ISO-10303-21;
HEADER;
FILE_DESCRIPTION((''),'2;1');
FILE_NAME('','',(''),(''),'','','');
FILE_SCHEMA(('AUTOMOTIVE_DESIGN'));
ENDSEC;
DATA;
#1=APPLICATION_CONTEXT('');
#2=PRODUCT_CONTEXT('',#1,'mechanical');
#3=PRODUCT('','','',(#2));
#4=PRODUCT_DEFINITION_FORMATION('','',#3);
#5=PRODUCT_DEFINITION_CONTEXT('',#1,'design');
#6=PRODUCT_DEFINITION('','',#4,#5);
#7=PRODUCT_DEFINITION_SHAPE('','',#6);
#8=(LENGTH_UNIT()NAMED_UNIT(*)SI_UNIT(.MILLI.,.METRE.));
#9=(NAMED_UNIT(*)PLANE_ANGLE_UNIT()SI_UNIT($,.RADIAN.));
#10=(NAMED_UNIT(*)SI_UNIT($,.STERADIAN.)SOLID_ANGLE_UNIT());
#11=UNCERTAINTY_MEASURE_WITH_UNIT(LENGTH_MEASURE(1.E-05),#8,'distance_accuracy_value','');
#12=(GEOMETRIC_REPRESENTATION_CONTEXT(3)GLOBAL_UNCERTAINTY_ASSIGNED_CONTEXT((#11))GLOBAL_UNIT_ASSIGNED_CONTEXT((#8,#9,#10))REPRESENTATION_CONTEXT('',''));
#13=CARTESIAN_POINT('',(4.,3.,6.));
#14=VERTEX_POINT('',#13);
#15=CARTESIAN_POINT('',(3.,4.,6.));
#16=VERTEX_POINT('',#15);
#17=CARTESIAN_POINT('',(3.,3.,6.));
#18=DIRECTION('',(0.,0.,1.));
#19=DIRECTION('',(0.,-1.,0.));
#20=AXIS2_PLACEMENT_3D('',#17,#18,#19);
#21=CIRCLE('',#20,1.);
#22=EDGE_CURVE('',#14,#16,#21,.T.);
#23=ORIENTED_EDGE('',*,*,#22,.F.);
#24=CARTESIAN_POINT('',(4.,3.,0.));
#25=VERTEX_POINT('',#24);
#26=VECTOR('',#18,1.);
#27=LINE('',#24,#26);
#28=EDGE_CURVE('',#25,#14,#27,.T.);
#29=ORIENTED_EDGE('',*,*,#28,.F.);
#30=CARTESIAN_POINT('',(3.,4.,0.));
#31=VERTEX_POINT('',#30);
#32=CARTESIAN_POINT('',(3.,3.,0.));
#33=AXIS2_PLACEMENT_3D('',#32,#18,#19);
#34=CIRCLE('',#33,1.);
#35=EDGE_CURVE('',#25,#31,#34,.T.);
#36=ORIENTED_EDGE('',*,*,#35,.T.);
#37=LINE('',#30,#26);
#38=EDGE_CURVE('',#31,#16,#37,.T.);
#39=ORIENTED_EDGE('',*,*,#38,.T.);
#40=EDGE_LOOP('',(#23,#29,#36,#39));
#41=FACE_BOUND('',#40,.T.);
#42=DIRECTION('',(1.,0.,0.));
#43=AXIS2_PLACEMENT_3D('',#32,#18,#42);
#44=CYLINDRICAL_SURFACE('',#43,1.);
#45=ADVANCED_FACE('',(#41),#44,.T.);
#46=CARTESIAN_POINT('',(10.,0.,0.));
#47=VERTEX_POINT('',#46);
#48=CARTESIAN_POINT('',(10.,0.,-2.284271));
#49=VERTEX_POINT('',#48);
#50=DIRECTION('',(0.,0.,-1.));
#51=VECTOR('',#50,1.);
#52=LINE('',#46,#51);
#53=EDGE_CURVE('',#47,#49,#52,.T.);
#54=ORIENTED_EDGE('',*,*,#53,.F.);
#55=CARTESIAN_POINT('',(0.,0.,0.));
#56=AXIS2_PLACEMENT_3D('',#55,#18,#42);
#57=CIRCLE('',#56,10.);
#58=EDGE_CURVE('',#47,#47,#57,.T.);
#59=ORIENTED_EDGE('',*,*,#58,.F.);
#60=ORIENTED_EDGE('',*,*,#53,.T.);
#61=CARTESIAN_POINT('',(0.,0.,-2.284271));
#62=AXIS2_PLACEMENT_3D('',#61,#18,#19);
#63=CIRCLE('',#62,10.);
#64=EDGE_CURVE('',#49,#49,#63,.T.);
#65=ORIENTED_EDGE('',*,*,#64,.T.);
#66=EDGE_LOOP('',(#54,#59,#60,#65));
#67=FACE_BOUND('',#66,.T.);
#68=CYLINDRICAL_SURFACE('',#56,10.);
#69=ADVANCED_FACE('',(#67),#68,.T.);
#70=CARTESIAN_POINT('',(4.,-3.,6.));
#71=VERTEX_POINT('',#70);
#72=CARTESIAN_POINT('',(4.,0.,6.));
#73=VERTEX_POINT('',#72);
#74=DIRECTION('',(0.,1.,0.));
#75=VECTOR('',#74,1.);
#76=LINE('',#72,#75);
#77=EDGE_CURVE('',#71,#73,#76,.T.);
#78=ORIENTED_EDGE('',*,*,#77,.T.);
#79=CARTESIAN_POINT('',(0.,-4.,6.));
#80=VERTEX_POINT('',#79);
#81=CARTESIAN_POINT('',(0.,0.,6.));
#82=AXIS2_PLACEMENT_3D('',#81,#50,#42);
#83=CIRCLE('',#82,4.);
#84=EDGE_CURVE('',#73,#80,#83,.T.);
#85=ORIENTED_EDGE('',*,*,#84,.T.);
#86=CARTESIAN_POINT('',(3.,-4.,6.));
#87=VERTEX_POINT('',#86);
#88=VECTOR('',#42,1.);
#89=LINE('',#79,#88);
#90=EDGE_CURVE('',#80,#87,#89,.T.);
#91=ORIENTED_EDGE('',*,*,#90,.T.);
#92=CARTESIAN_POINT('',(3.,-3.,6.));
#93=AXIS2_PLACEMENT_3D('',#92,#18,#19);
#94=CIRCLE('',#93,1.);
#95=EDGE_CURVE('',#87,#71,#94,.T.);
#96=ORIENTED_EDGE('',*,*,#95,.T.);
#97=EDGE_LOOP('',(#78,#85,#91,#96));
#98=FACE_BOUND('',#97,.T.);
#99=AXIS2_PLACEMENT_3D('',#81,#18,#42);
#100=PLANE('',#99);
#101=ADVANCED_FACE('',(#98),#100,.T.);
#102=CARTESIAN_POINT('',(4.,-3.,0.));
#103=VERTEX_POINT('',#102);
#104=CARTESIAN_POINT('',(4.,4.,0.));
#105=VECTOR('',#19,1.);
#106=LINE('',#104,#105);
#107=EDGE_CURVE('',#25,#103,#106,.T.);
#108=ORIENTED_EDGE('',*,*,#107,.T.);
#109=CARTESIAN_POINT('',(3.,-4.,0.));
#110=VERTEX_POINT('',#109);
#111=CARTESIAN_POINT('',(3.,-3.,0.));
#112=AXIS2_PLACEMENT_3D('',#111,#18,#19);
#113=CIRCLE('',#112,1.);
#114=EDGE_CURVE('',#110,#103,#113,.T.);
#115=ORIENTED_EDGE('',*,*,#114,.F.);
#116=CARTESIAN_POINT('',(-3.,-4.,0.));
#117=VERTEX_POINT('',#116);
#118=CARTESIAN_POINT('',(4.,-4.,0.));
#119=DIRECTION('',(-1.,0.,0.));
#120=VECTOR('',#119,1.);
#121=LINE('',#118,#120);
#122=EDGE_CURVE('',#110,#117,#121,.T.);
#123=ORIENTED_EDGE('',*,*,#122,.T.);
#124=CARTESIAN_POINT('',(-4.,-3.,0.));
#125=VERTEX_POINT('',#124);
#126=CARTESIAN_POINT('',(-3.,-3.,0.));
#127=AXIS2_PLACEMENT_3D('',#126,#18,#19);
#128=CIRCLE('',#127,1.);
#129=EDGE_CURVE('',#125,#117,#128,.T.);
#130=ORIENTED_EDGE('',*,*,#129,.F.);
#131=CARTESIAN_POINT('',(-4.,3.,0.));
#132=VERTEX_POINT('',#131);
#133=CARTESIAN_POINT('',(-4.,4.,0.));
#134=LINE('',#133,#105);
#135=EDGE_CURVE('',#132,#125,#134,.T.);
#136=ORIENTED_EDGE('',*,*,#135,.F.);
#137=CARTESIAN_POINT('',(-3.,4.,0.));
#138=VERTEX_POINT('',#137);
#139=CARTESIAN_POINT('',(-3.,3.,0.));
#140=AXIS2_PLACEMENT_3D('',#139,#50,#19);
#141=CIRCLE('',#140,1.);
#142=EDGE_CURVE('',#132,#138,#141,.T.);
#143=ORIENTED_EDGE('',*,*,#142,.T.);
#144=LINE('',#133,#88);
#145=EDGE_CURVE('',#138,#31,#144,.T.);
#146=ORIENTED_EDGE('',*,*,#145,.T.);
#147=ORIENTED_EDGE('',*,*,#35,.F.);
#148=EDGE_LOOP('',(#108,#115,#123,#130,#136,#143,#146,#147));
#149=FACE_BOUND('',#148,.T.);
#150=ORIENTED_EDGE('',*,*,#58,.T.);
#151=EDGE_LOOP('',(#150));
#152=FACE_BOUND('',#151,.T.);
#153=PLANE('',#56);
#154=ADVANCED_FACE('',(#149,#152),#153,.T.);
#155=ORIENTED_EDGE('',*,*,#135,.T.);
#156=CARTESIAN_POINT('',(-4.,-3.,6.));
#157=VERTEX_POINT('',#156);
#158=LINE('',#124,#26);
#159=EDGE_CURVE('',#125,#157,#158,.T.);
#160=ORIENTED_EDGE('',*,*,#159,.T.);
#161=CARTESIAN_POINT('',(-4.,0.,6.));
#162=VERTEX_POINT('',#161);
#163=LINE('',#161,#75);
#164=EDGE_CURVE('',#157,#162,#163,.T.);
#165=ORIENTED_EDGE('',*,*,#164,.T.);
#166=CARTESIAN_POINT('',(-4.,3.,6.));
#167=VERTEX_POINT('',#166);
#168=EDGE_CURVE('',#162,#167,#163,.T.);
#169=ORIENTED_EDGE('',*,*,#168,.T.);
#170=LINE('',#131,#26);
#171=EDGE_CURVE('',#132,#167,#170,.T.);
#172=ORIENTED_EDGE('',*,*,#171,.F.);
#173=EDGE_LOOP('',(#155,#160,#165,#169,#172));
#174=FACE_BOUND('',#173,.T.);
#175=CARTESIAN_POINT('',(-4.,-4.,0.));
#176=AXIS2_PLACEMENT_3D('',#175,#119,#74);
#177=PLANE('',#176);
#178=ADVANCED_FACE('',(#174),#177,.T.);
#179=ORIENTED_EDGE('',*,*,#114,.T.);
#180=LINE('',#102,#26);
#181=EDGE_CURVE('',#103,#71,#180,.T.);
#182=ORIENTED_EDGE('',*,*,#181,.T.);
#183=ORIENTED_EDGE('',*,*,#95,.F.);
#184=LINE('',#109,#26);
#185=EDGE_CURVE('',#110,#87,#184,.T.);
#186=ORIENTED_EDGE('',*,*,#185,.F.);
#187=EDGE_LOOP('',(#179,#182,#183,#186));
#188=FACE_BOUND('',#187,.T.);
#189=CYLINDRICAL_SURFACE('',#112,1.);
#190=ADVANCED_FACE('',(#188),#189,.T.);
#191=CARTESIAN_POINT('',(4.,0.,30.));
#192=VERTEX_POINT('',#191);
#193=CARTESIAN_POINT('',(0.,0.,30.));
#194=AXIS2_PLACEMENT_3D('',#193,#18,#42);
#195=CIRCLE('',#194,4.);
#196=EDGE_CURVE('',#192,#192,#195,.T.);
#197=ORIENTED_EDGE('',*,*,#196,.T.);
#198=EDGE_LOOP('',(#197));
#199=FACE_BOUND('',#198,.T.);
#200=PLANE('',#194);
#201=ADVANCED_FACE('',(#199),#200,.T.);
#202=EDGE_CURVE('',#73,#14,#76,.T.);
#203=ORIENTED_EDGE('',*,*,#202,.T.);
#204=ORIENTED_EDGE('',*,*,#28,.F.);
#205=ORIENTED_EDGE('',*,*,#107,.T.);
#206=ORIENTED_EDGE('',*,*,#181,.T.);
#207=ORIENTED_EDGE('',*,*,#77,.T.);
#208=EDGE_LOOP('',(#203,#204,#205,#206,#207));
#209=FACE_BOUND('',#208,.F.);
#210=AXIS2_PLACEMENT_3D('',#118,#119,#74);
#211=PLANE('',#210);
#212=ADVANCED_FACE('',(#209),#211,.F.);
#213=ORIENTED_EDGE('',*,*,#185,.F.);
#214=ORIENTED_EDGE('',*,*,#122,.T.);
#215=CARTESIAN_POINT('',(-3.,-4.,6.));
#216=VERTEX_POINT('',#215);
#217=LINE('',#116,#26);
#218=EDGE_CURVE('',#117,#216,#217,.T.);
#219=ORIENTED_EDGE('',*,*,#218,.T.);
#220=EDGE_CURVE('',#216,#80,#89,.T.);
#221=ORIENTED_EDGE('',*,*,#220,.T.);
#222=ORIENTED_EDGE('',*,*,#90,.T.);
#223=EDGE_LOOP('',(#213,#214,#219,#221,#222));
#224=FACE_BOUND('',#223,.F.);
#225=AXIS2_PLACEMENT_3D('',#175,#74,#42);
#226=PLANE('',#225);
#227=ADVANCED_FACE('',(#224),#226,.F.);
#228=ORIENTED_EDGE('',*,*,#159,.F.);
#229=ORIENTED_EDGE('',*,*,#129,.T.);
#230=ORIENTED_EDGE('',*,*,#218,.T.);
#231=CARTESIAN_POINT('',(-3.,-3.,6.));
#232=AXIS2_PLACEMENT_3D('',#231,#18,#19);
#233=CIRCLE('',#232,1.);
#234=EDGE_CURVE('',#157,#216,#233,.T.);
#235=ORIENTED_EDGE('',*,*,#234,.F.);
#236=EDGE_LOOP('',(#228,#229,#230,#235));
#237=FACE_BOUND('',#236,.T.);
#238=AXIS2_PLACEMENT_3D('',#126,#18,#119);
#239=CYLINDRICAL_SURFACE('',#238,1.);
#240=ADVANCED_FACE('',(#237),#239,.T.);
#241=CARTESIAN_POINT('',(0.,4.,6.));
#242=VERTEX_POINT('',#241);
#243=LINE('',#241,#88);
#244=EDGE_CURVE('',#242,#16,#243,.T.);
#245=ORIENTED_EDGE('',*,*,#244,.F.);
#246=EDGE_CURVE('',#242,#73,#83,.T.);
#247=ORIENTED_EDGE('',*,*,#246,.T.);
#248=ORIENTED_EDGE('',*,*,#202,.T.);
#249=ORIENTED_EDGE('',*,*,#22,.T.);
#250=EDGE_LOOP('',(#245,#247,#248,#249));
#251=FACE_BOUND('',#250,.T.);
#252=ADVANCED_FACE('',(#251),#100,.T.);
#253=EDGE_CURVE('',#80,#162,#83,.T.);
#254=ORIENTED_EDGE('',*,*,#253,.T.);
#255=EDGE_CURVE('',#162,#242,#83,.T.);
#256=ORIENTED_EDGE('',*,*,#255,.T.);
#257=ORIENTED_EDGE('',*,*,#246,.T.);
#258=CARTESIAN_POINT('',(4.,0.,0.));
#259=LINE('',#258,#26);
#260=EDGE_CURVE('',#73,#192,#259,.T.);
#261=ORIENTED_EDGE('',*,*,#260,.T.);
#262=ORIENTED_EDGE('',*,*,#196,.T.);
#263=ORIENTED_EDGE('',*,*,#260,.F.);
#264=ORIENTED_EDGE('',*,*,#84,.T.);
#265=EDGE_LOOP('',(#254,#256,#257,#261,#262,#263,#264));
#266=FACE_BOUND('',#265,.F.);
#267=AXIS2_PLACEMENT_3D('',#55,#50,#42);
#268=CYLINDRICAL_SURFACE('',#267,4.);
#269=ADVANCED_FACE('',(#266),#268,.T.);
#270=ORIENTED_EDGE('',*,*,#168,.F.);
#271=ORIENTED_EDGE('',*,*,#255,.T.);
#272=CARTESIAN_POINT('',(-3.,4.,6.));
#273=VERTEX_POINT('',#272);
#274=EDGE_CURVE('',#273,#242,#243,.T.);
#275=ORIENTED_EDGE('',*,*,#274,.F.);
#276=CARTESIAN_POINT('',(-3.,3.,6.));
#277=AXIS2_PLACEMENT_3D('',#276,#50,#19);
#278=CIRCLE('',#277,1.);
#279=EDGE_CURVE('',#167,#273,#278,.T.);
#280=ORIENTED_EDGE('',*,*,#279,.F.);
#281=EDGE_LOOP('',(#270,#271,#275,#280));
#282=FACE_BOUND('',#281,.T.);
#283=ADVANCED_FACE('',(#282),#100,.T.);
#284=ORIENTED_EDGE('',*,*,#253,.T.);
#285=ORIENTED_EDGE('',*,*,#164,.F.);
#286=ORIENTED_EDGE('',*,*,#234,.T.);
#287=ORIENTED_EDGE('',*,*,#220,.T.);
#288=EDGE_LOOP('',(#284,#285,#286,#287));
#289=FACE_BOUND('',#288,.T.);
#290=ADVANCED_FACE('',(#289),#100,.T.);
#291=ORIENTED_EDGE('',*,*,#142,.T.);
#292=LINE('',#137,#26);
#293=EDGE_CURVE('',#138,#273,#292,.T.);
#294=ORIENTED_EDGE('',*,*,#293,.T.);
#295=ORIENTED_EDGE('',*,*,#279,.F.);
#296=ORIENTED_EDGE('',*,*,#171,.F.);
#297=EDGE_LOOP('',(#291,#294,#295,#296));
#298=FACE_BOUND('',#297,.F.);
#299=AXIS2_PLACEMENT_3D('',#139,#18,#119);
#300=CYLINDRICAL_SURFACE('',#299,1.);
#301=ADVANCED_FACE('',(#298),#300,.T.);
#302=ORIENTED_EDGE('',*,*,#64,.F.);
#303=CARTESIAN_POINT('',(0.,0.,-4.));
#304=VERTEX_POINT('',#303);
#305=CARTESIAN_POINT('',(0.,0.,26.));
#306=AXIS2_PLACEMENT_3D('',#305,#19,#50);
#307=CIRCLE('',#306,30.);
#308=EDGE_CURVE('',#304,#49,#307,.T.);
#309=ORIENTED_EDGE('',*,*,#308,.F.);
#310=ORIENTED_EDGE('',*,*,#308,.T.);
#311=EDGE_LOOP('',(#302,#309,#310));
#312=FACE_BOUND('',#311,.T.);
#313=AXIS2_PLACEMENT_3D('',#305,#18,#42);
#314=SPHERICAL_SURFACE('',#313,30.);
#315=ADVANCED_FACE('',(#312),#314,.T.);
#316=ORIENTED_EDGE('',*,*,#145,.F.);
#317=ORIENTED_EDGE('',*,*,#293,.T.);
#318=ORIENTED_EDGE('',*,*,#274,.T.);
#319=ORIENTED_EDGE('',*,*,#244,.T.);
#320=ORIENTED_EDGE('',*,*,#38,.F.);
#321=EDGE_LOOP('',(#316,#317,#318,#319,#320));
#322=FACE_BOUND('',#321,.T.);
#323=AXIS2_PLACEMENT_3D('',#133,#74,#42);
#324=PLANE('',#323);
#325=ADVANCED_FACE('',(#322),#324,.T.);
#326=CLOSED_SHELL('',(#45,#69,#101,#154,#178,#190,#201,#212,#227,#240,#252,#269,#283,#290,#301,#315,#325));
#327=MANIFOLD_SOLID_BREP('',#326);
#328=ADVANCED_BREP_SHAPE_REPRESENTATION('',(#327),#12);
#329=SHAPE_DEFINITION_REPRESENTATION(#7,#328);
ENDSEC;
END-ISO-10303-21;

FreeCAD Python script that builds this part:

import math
import FreeCAD as App
import Part
import Sketcher
from FreeCAD import Vector


def edges_at(feature, points):
    """Names of the edges that pass closest to the given points."""
    edges = feature.Shape.Edges
    near = lambda p: min(range(len(edges)), key=lambda i: edges[i].distToShape(Part.Vertex(*p))[0])
    return sorted({f"Edge{near(p) + 1}" for p in points})


def add_polygon(sketch, points):
    """Adds a closed chain of lines whose ends are joined by coincident constraints."""
    first, n = sketch.GeometryCount, len(points)
    for a, b in zip(points, points[1:] + points[:1]):
        sketch.addGeometry(Part.LineSegment(App.Vector(*a, 0), App.Vector(*b, 0)), False)
    for i in range(n):
        sketch.addConstraint(Sketcher.Constraint("Coincident", first + i, 2, first + (i + 1) % n, 1))

doc = App.newDocument("Part")
body = doc.addObject("PartDesign::Body", "Body")

# Sketch on XZ plane
sketch1 = body.newObject("Sketcher::SketchObject", "Sketch")
sketch1.AttachmentSupport = (doc.getObject("XZ_Plane"), [""])
sketch1.MapMode = "FlatFace"
sketch1.addGeometry([
    Part.ArcOfCircle(Part.Circle(Vector(0, 0, 0), Vector(0, 0, 1), 30), math.radians(-90), math.radians(90)),
    Part.LineSegment(Vector(0, 30, 0), Vector(0, -30, 0)),
], False)
sketch1.addConstraint([
    Sketcher.Constraint("Coincident", 0, 1, 1, 2),
    Sketcher.Constraint("Coincident", 1, 1, 0, 2),
    Sketcher.Constraint("Vertical", 1),
    Sketcher.Constraint("Coincident", 0, 3, -1, 1),
    Sketcher.Constraint("PointOnObject", 0, 1, -2),
    Sketcher.Constraint("Radius", 0, 30.0),
])
revolution = body.newObject("PartDesign::Revolution", "Revolution")
revolution.Profile = sketch1
revolution.ReferenceAxis = (sketch1, ["V_Axis"])
revolution.Angle = 360
body2 = doc.addObject("PartDesign::Body", "Body001")
doc.recompute()

body.Placement = App.Placement(Vector(0, 0, 26), App.Rotation(Vector(0, 0, 1), 0))
boolean = body2.newObject("PartDesign::Boolean", "Boolean")
boolean.Type = "Fuse"
boolean.addObjects([body])
body3 = doc.addObject("PartDesign::Body", "Body002")

# Sketch on XY plane
sketch2 = body3.newObject("Sketcher::SketchObject", "Sketch001")
sketch2.AttachmentSupport = (doc.getObject("XY_Plane002"), [""])
sketch2.MapMode = "FlatFace"
sketch2.addGeometry(Part.Circle(Vector(0, 0, 0), Vector(0, 0, 1), 4), False)
sketch2.addConstraint([
    Sketcher.Constraint("Coincident", 0, 3, -1, 1),
    Sketcher.Constraint("Diameter", 0, 8.0),
])
pad1 = body3.newObject("PartDesign::Pad", "Pad")
pad1.Profile = sketch2
pad1.Length = 30

# Sketch on XY plane
sketch3 = body3.newObject("Sketcher::SketchObject", "Sketch002")
sketch3.AttachmentSupport = (doc.getObject("XY_Plane002"), [""])
sketch3.MapMode = "FlatFace"
add_polygon(sketch3, [(-4, 4), (-4, -4), (4, -4), (4, 4)])  # lines 0-3
sketch3.addConstraint([
    Sketcher.Constraint("Vertical", 0),
    Sketcher.Constraint("Horizontal", 1),
    Sketcher.Constraint("Vertical", 2),
    Sketcher.Constraint("Horizontal", 3),
    Sketcher.Constraint("Symmetric", 0, 2, 2, 2, -1, 1),
    Sketcher.Constraint("Equal", 3, 0),
    Sketcher.Constraint("DistanceX", 1, 1, 1, 2, 8.0),
])
pad2 = body3.newObject("PartDesign::Pad", "Pad001")
pad2.Profile = sketch3
pad2.Length = 6

# Sketch on XY plane
sketch4 = body3.newObject("Sketcher::SketchObject", "Sketch003")
sketch4.AttachmentSupport = (doc.getObject("XY_Plane002"), [""])
sketch4.MapMode = "FlatFace"
sketch4.addGeometry(Part.Circle(Vector(0, 0, 0), Vector(0, 0, 1), 10), False)
sketch4.addConstraint([
    Sketcher.Constraint("Coincident", 0, 3, -1, 1),
    Sketcher.Constraint("Diameter", 0, 20.0),
])
pad3 = body3.newObject("PartDesign::Pad", "Pad002")
pad3.Profile = sketch4
pad3.Length = 10
pad3.Reversed = True
doc.recompute()

boolean2 = body3.newObject("PartDesign::Boolean", "Boolean001")
boolean2.Type = "Common"
boolean2.addObjects([body2])
doc.recompute()

fillet = body3.newObject("PartDesign::Fillet", "Fillet")
fillet.Base = (boolean2, edges_at(boolean2, [
    (4, 4, 3),
    (-4, 4, 3),
    (-4, -4, 3),
    (4, -4, 3),
]))
fillet.Radius = 1

doc.recompute()
